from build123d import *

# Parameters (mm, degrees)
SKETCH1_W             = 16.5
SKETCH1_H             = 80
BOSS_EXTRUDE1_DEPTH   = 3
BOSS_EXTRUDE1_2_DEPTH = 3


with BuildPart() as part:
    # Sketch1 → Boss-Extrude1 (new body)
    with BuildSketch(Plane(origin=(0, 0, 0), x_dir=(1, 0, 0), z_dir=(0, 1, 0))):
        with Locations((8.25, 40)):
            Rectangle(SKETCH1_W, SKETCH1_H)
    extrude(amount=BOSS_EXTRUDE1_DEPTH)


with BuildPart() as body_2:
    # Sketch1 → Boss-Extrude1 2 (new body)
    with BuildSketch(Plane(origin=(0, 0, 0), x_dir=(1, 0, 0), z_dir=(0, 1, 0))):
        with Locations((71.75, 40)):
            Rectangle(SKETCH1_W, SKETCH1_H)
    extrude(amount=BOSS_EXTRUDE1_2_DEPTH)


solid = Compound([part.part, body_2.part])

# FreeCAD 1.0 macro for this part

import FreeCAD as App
import Part
import Sketcher

doc = App.newDocument("Part")
body = doc.addObject("PartDesign::Body", "Body")

sketch1 = doc.addObject("Sketcher::SketchObject", "Sketch")
body.addObject(sketch1)
sketch1.AttachmentSupport = (doc.XZ_Plane, [""])
sketch1.MapMode = "FlatFace"
sketch1.addGeometry(Part.LineSegment(App.Vector(0, -80, 0), App.Vector(0, 0, 0)), False)
sketch1.addGeometry(Part.LineSegment(App.Vector(0, 0, 0), App.Vector(16.5, 0, 0)), False)
sketch1.addGeometry(Part.LineSegment(App.Vector(16.5, 0, 0), App.Vector(16.5, -80, 0)), False)
sketch1.addGeometry(Part.LineSegment(App.Vector(16.5, -80, 0), App.Vector(0, -80, 0)), False)
sketch1.addConstraint(Sketcher.Constraint("Coincident", 0, 2, 1, 1))
sketch1.addConstraint(Sketcher.Constraint("Coincident", 1, 2, 2, 1))
sketch1.addConstraint(Sketcher.Constraint("Coincident", 2, 2, 3, 1))
sketch1.addConstraint(Sketcher.Constraint("Coincident", 3, 2, 0, 1))
sketch1.addConstraint(Sketcher.Constraint("Vertical", 0))
sketch1.addConstraint(Sketcher.Constraint("Horizontal", 1))
sketch1.addConstraint(Sketcher.Constraint("Vertical", 2))
sketch1.addConstraint(Sketcher.Constraint("Horizontal", 3))
sketch1.addConstraint(Sketcher.Constraint("Coincident", 0, 2, -1, 1))
sketch1.addConstraint(Sketcher.Constraint("DistanceY", 0, 1, 0, 2, 80.0))
sketch1.addConstraint(Sketcher.Constraint("DistanceX", 1, 1, 1, 2, 16.5))
pad1 = doc.addObject("PartDesign::Pad", "Pad")
body.addObject(pad1)
pad1.Profile = sketch1
pad1.Length = 3
pad1.Reversed = True
body2 = doc.addObject("PartDesign::Body", "Body001")

sketch2 = doc.addObject("Sketcher::SketchObject", "Sketch001")
body2.addObject(sketch2)
sketch2.AttachmentSupport = (doc.getObject("XZ_Plane001"), [""])
sketch2.MapMode = "FlatFace"
sketch2.addGeometry(Part.LineSegment(App.Vector(63.5, -80, 0), App.Vector(63.5, 0, 0)), False)
sketch2.addGeometry(Part.LineSegment(App.Vector(63.5, 0, 0), App.Vector(80, 0, 0)), False)
sketch2.addGeometry(Part.LineSegment(App.Vector(80, 0, 0), App.Vector(80, -80, 0)), False)
sketch2.addGeometry(Part.LineSegment(App.Vector(80, -80, 0), App.Vector(63.5, -80, 0)), False)
sketch2.addConstraint(Sketcher.Constraint("Coincident", 0, 2, 1, 1))
sketch2.addConstraint(Sketcher.Constraint("Coincident", 1, 2, 2, 1))
sketch2.addConstraint(Sketcher.Constraint("Coincident", 2, 2, 3, 1))
sketch2.addConstraint(Sketcher.Constraint("Coincident", 3, 2, 0, 1))
sketch2.addConstraint(Sketcher.Constraint("Vertical", 0))
sketch2.addConstraint(Sketcher.Constraint("Horizontal", 1))
sketch2.addConstraint(Sketcher.Constraint("Vertical", 2))
sketch2.addConstraint(Sketcher.Constraint("Horizontal", 3))
sketch2.addConstraint(Sketcher.Constraint("PointOnObject", 0, 2, -1))
sketch2.addConstraint(Sketcher.Constraint("DistanceY", 0, 1, 0, 2, 80.0))
sketch2.addConstraint(Sketcher.Constraint("DistanceX", 1, 1, 1, 2, 16.5))
sketch2.addConstraint(Sketcher.Constraint("DistanceX", -1, 1, 1, 2, 80.0))
pad2 = doc.addObject("PartDesign::Pad", "Pad001")
body2.addObject(pad2)
pad2.Profile = sketch2
pad2.Length = 3
pad2.Reversed = True

doc.recompute()
